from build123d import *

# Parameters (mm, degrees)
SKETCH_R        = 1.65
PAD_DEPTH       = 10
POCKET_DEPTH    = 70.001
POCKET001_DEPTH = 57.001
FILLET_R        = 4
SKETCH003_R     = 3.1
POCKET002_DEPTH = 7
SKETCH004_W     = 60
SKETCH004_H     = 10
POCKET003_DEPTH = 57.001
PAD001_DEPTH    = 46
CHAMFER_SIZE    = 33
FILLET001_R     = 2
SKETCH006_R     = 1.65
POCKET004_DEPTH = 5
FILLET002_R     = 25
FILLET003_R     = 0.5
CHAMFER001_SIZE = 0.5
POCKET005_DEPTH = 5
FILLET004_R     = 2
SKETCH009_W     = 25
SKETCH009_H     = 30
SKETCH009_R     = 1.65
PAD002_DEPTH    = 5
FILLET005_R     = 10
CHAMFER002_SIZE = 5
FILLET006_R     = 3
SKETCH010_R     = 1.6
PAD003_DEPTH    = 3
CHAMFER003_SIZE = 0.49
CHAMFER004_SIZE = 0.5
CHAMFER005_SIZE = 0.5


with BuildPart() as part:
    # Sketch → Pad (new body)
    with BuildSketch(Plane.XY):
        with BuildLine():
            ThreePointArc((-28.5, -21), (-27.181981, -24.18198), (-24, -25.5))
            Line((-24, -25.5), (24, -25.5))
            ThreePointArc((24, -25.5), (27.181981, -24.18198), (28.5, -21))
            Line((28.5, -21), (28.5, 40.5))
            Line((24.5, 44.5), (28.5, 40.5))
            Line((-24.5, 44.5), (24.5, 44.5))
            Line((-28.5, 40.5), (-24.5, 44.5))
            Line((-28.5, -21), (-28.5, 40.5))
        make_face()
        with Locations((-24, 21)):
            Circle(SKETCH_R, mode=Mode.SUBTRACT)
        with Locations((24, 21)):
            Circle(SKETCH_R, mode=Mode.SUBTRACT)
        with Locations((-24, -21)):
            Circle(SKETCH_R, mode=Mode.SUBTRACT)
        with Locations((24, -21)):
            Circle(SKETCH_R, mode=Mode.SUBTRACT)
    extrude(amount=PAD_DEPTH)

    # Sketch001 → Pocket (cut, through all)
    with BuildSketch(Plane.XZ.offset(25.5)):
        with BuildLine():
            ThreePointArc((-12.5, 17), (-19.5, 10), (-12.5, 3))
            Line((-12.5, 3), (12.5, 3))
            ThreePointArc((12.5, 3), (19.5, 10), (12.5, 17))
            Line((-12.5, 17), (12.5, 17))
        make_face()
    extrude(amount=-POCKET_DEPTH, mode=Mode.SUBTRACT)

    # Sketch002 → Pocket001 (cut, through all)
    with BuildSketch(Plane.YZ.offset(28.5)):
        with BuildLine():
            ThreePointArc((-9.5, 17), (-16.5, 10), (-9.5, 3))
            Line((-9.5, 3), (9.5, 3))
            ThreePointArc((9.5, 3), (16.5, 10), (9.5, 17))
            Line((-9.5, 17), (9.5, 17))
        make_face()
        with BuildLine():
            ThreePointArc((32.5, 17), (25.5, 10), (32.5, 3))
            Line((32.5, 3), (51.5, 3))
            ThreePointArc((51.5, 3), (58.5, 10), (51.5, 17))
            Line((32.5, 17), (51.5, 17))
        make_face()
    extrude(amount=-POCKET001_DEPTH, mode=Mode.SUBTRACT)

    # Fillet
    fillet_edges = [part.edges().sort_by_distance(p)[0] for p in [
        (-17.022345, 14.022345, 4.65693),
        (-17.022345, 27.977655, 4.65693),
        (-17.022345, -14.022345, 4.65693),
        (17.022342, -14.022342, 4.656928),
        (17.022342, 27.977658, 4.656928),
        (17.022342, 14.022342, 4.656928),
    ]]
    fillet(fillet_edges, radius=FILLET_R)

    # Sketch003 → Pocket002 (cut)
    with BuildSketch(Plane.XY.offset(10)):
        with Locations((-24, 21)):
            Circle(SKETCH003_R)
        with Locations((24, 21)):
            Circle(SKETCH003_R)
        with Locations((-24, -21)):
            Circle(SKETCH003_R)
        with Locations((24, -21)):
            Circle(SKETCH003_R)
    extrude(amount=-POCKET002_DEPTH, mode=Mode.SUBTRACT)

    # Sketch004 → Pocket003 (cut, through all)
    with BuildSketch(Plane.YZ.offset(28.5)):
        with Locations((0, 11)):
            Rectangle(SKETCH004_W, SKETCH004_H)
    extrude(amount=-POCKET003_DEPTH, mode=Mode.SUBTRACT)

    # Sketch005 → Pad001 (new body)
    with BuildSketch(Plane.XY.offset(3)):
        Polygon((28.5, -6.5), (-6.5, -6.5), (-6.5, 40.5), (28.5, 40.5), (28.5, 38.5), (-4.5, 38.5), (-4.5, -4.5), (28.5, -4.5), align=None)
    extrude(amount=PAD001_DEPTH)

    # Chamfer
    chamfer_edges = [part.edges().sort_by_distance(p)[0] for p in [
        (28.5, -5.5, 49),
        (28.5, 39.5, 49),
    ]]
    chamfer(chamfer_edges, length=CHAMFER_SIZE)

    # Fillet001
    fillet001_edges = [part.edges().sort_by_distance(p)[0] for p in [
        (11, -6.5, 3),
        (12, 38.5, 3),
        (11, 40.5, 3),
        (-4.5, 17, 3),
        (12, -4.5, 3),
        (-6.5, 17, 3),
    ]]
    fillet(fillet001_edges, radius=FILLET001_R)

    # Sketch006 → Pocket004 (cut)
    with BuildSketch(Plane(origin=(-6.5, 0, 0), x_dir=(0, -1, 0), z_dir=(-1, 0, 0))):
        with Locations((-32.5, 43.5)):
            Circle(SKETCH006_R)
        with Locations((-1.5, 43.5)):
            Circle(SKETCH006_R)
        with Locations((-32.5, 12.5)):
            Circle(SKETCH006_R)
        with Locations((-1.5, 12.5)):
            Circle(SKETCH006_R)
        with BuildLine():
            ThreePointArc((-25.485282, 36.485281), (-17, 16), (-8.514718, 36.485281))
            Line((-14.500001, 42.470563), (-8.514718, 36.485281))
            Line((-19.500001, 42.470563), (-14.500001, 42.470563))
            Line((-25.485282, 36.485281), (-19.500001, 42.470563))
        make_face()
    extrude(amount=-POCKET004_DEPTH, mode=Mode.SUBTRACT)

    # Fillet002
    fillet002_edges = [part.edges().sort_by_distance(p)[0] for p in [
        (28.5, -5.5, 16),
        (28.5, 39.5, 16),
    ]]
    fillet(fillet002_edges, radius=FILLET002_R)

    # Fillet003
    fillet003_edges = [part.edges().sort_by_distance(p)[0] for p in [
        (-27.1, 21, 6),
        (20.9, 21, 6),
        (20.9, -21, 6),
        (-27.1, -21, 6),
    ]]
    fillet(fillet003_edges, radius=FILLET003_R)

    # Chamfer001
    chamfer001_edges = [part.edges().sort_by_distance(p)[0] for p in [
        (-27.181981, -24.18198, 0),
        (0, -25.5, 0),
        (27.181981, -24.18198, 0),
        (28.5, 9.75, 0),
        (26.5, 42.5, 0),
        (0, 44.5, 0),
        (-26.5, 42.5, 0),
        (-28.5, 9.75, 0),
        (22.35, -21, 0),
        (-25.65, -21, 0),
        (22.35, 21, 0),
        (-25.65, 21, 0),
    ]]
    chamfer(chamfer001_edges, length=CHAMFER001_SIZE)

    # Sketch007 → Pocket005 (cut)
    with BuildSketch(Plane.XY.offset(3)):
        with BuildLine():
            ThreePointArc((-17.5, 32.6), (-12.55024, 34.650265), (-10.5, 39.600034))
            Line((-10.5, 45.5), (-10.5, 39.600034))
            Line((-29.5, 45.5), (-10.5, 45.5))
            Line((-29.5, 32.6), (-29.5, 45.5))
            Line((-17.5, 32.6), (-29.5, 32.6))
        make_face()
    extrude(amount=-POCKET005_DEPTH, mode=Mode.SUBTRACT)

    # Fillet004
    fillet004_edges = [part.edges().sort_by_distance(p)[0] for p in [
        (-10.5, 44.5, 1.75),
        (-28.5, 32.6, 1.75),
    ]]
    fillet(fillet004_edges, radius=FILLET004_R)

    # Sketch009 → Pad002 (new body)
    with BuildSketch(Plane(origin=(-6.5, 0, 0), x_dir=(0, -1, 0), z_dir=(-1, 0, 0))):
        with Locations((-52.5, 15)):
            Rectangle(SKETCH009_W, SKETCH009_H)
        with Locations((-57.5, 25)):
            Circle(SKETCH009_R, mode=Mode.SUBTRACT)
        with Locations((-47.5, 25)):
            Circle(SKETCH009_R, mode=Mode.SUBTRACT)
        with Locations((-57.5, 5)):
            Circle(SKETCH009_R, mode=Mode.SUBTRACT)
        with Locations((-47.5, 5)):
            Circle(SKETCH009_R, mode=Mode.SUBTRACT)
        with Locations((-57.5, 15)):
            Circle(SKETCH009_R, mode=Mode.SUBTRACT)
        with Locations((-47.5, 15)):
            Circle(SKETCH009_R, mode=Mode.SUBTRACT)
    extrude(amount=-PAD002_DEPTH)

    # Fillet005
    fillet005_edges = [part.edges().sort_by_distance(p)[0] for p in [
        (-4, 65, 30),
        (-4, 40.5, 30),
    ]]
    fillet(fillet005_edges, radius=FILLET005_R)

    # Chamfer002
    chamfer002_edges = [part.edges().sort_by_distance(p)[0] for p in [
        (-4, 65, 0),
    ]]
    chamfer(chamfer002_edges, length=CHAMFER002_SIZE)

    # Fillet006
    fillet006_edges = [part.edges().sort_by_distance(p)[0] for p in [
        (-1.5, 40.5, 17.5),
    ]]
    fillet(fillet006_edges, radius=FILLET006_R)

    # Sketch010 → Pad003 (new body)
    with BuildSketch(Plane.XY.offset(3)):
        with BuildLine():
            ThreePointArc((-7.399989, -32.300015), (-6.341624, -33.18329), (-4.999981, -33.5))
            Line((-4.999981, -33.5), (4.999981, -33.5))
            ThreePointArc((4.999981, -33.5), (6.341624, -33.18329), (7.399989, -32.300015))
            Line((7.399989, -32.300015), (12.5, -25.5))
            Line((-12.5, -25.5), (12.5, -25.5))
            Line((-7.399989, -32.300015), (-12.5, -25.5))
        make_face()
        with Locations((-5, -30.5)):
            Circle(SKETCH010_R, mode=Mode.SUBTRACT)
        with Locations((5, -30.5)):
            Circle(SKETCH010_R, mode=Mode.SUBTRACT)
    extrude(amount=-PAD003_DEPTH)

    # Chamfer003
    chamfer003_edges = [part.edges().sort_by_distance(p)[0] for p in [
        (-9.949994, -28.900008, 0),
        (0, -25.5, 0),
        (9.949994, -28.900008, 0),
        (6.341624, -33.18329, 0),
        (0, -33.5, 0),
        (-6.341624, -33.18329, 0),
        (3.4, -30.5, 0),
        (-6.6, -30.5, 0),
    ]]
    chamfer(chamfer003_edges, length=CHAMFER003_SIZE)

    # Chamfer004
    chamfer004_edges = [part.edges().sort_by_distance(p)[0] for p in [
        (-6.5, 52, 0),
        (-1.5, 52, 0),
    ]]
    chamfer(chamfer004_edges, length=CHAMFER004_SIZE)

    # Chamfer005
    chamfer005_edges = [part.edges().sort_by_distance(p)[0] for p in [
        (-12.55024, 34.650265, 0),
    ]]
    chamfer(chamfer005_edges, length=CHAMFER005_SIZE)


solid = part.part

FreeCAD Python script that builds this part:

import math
import FreeCAD as App
import Part
import Sketcher

V = App.Vector
Q = App.Units.Quantity


def edges_at(feature, points):
    """Names of the edges that pass closest to the given points."""
    edges = feature.Shape.Edges
    near = lambda p: min(range(len(edges)), key=lambda i: edges[i].distToShape(Part.Vertex(*p))[0])
    return sorted({f"Edge{near(p) + 1}" for p in points})


def add_polygon(sketch, points):
    """Adds a closed chain of lines whose ends are joined by coincident constraints."""
    first, n = sketch.GeometryCount, len(points)
    for a, b in zip(points, points[1:] + points[:1]):
        sketch.addGeometry(Part.LineSegment(App.Vector(*a, 0), App.Vector(*b, 0)), False)
    for i in range(n):
        sketch.addConstraint(Sketcher.Constraint("Coincident", first + i, 2, first + (i + 1) % n, 1))

doc = App.newDocument("Part")
body = doc.addObject("PartDesign::Body", "Body")

sketch1 = body.newObject("Sketcher::SketchObject", "Sketch")
sketch1.AttachmentSupport = (doc.getObject("XY_Plane"), [""])
sketch1.MapMode = "FlatFace"
sketch1.addGeometry([
    Part.ArcOfCircle(Part.Circle(V(-24, -21, 0), V(0, 0, 1), 4.5), math.radians(-180), math.radians(-90)),
    Part.LineSegment(V(-24, -25.5, 0), V(24, -25.5, 0)),
    Part.ArcOfCircle(Part.Circle(V(24, -21, 0), V(0, 0, 1), 4.5), math.radians(-90), math.radians(0)),
    Part.LineSegment(V(28.5, -21, 0), V(28.5, 40.5, 0)),
    Part.LineSegment(V(28.5, 40.5, 0), V(24.5, 44.5, 0)),
    Part.LineSegment(V(24.5, 44.5, 0), V(-24.5, 44.5, 0)),
    Part.LineSegment(V(-24.5, 44.5, 0), V(-28.5, 40.5, 0)),
    Part.LineSegment(V(-28.5, 40.5, 0), V(-28.5, -21, 0)),
    Part.Circle(V(-24, -21, 0), V(0, 0, 1), 1.6),
    Part.Circle(V(24, -21, 0), V(0, 0, 1), 1.6),
    Part.Circle(V(-24, 21, 0), V(0, 0, 1), 1.6),
    Part.Circle(V(24, 21, 0), V(0, 0, 1), 1.6),
], False)
sketch1.addConstraint([
    Sketcher.Constraint("Tangent", 0, 2, 1, 1),
    Sketcher.Constraint("Tangent", 1, 2, 2, 1),
    Sketcher.Constraint("Tangent", 2, 2, 3, 1),
    Sketcher.Constraint("Coincident", 3, 2, 4, 1),
    Sketcher.Constraint("Coincident", 4, 2, 5, 1),
    Sketcher.Constraint("Coincident", 5, 2, 6, 1),
    Sketcher.Constraint("Coincident", 6, 2, 7, 1),
    Sketcher.Constraint("Tangent", 7, 2, 0, 1),
    Sketcher.Constraint("Horizontal", 1),
    Sketcher.Constraint("Vertical", 3),
    Sketcher.Constraint("Horizontal", 5),
    Sketcher.Constraint("Vertical", 7),
    Sketcher.Constraint("Coincident", 8, 3, 0, 3),
    Sketcher.Constraint("Coincident", 9, 3, 2, 3),
    Sketcher.Constraint("Equal", 0, 2),
    Sketcher.Constraint("Equal", 8, 9),
    Sketcher.Constraint("Equal", 9, 10),
    Sketcher.Constraint("Equal", 10, 11),
    Sketcher.Constraint("Symmetric", 2, 3, 10, 3, -1, 1),
    Sketcher.Constraint("Symmetric", 0, 3, 11, 3, -1, 1),
    Sketcher.Constraint("Symmetric", 3, 2, 6, 2, -2),
    Sketcher.Constraint("Perpendicular", 4, 6),
    Sketcher.Constraint("Equal", 4, 6),
    Sketcher.Constraint("Diameter", 8, Q("3.3 mm")),
    Sketcher.Constraint("Radius", 0, Q("4.5 mm")),
    Sketcher.Constraint("DistanceX", 1, 1, 1, 2, Q("48 mm")),
    Sketcher.Constraint("DistanceX", 5, 2, 5, 1, Q("49 mm")),
    Sketcher.Constraint("DistanceY", 3, 1, 3, 2, Q("61.5 mm")),
    Sketcher.Constraint("DistanceY", 0, 3, -1, 1, Q("21 mm")),
])
pad1 = body.newObject("PartDesign::Pad", "Pad")
pad1.Profile = sketch1
pad1.Length = 10

sketch2 = body.newObject("Sketcher::SketchObject", "Sketch001")
sketch2.AttachmentSupport = (doc.getObject("XZ_Plane"), [""])
sketch2.MapMode = "FlatFace"
sketch2.AttachmentOffset = App.Placement(V(0, 0, 25.5), App.Rotation())
sketch2.addGeometry([
    Part.ArcOfCircle(Part.Circle(V(-12, 10, 0), V(0, 0, 1), 7), math.radians(90), math.radians(270)),
    Part.LineSegment(V(-12, 3, 0), V(12, 3, 0)),
    Part.ArcOfCircle(Part.Circle(V(12, 10, 0), V(0, 0, 1), 7), math.radians(-90), math.radians(90)),
    Part.LineSegment(V(12, 17, 0), V(-12, 17, 0)),
], False)
sketch2.addConstraint([
    Sketcher.Constraint("Tangent", 0, 2, 1, 1),
    Sketcher.Constraint("Tangent", 1, 2, 2, 1),
    Sketcher.Constraint("Tangent", 2, 2, 3, 1),
    Sketcher.Constraint("Tangent", 3, 2, 0, 1),
    Sketcher.Constraint("Horizontal", 1),
    Sketcher.Constraint("Horizontal", 3),
    Sketcher.Constraint("Radius", 0, Q("7 mm")),
    Sketcher.Constraint("DistanceX", 1, 1, 1, 2, Q("25 mm")),
    Sketcher.Constraint("DistanceY", -1, 1, 0, 3, Q("10 mm")),
    Sketcher.Constraint("DistanceX", 0, 3, -1, 1, Q("12.5 mm")),
])
pocket1 = body.newObject("PartDesign::Pocket", "Pocket")
pocket1.Profile = sketch2
pocket1.Type = "ThroughAll"

sketch3 = body.newObject("Sketcher::SketchObject", "Sketch002")
sketch3.AttachmentSupport = (doc.getObject("YZ_Plane"), [""])
sketch3.MapMode = "FlatFace"
sketch3.AttachmentOffset = App.Placement(V(0, 0, 28.5), App.Rotation())
sketch3.addGeometry([
    Part.ArcOfCircle(Part.Circle(V(-10, 10, 0), V(0, 0, 1), 7), math.radians(90), math.radians(270)),
    Part.LineSegment(V(-10, 3, 0), V(10, 3, 0)),
    Part.ArcOfCircle(Part.Circle(V(10, 10, 0), V(0, 0, 1), 7), math.radians(-90), math.radians(90)),
    Part.LineSegment(V(10, 17, 0), V(-10, 17, 0)),
    Part.ArcOfCircle(Part.Circle(V(32, 10, 0), V(0, 0, 1), 7), math.radians(90), math.radians(270)),
    Part.LineSegment(V(32, 3, 0), V(52, 3, 0)),
    Part.ArcOfCircle(Part.Circle(V(52, 10, 0), V(0, 0, 1), 7), math.radians(-90), math.radians(90)),
    Part.LineSegment(V(52, 17, 0), V(32, 17, 0)),
], False)
sketch3.addConstraint([
    Sketcher.Constraint("Tangent", 0, 2, 1, 1),
    Sketcher.Constraint("Tangent", 1, 2, 2, 1),
    Sketcher.Constraint("Tangent", 2, 2, 3, 1),
    Sketcher.Constraint("Tangent", 3, 2, 0, 1),
    Sketcher.Constraint("Tangent", 4, 2, 5, 1),
    Sketcher.Constraint("Tangent", 5, 2, 6, 1),
    Sketcher.Constraint("Tangent", 6, 2, 7, 1),
    Sketcher.Constraint("Tangent", 7, 2, 4, 1),
    Sketcher.Constraint("Horizontal", 1),
    Sketcher.Constraint("Horizontal", 3),
    Sketcher.Constraint("Horizontal", 5),
    Sketcher.Constraint("Horizontal", 7),
    Sketcher.Constraint("Equal", 2, 4),
    Sketcher.Constraint("Horizontal", 2, 3, 4, 3),
    Sketcher.Constraint("Equal", 3, 5),
    Sketcher.Constraint("Radius", 0, Q("7 mm")),
    Sketcher.Constraint("DistanceX", 1, 1, 1, 2, Q("19 mm")),
    Sketcher.Constraint("DistanceY", -1, 1, 0, 3, Q("10 mm")),
    Sketcher.Constraint("DistanceX", 2, 3, 4, 3, Q("23 mm")),
    Sketcher.Constraint("DistanceX", 0, 3, -1, 1, Q("9.5 mm")),
])
pocket2 = body.newObject("PartDesign::Pocket", "Pocket001")
pocket2.Profile = sketch3
pocket2.Type = "ThroughAll"
doc.recompute()

fillet = body.newObject("PartDesign::Fillet", "Fillet")
fillet.Base = (pocket2, edges_at(pocket2, [
    (-17.022, 14.022, 4.657),
    (-17.022, 27.978, 4.657),
    (-17.022, -14.022, 4.657),
    (17.022, -14.022, 4.657),
    (17.022, 27.978, 4.657),
    (17.022, 14.022, 4.657),
]))
fillet.Radius = 4

sketch4 = body.newObject("Sketcher::SketchObject", "Sketch003")
sketch4.AttachmentSupport = (doc.getObject("XY_Plane"), [""])
sketch4.MapMode = "FlatFace"
sketch4.AttachmentOffset = App.Placement(V(0, 0, 10), App.Rotation())
sketch4.addGeometry([
    Part.Circle(V(-24, 21, 0), V(0, 0, 1), 3.1),
    Part.Circle(V(24, 21, 0), V(0, 0, 1), 3.1),
    Part.Circle(V(-24, -21, 0), V(0, 0, 1), 3.1),
    Part.Circle(V(24, -21, 0), V(0, 0, 1), 3.1),
], False)
sketch4.addConstraint([
    Sketcher.Constraint("Equal", 0, 1),
    Sketcher.Constraint("Equal", 1, 2),
    Sketcher.Constraint("Equal", 2, 3),
    Sketcher.Constraint("Symmetric", 1, 3, 2, 3, -1, 1),
    Sketcher.Constraint("Symmetric", 0, 3, 3, 3, -1, 1),
    Sketcher.Constraint("Symmetric", 0, 3, 1, 3, -2),
    Sketcher.Constraint("Diameter", 0, Q("6.2 mm")),
    Sketcher.Constraint("DistanceX", 0, 3, -1, 1, Q("24 mm")),
    Sketcher.Constraint("DistanceY", -1, 1, 0, 3, Q("21 mm")),
])
pocket3 = body.newObject("PartDesign::Pocket", "Pocket002")
pocket3.Profile = sketch4
pocket3.Length = 7

sketch5 = body.newObject("Sketcher::SketchObject", "Sketch004")
sketch5.AttachmentSupport = (doc.getObject("YZ_Plane"), [""])
sketch5.MapMode = "FlatFace"
sketch5.AttachmentOffset = App.Placement(V(0, 0, 28.5), App.Rotation())
add_polygon(sketch5, [(-30, 16), (-30, 6), (30, 6), (30, 16)])
sketch5.addConstraint([
    Sketcher.Constraint("Vertical", 0),
    Sketcher.Constraint("Horizontal", 1),
    Sketcher.Constraint("Vertical", 2),
    Sketcher.Constraint("Horizontal", 3),
    Sketcher.Constraint("DistanceX", 1, 1, 1, 2, Q("60 mm")),
    Sketcher.Constraint("DistanceY", 0, 2, 0, 1, Q("10 mm")),
    Sketcher.Constraint("DistanceX", 0, 2, -1, 1, Q("30 mm")),
    Sketcher.Constraint("DistanceY", -1, 1, 0, 2, Q("6 mm")),
])
pocket4 = body.newObject("PartDesign::Pocket", "Pocket003")
pocket4.Profile = sketch5
pocket4.Type = "ThroughAll"

sketch6 = body.newObject("Sketcher::SketchObject", "Sketch005")
sketch6.AttachmentSupport = (doc.getObject("XY_Plane"), [""])
sketch6.MapMode = "FlatFace"
sketch6.AttachmentOffset = App.Placement(V(0, 0, 3), App.Rotation())
add_polygon(sketch6, [(-6.5, -6.5), (28.5, -6.5), (28.5, -4.5), (-4.5, -4.5), (-4.5, 38.5), (28.5, 38.5), (28.5, 40.5), (-6.5, 40.5)])
sketch6.addConstraint([
    Sketcher.Constraint("Horizontal", 0),
    Sketcher.Constraint("Vertical", 1),
    Sketcher.Constraint("Horizontal", 2),
    Sketcher.Constraint("Vertical", 3),
    Sketcher.Constraint("Horizontal", 4),
    Sketcher.Constraint("Vertical", 5),
    Sketcher.Constraint("Horizontal", 6),
    Sketcher.Constraint("Vertical", 7),
    Sketcher.Constraint("Vertical", 1, 2, 4, 2),
    Sketcher.Constraint("Equal", 1, 5),
    Sketcher.Constraint("DistanceX", 0, 1, 0, 2, Q("35 mm")),
    Sketcher.Constraint("DistanceX", 2, 2, 2, 1, Q("33 mm")),
    Sketcher.Constraint("DistanceY", 1, 1, 1, 2, Q("2 mm")),
    Sketcher.Constraint("DistanceY", 3, 1, 3, 2, Q("43 mm")),
    Sketcher.Constraint("DistanceX", -1, 1, 0, 2, Q("28.5 mm")),
    Sketcher.Constraint("DistanceY", 0, 2, -1, 1, Q("6.5 mm")),
])
pad2 = body.newObject("PartDesign::Pad", "Pad001")
pad2.Profile = sketch6
pad2.Length = 46
doc.recompute()

chamfer = body.newObject("PartDesign::Chamfer", "Chamfer")
chamfer.Base = (pad2, edges_at(pad2, [(28.5, -5.5, 49), (28.5, 39.5, 49)]))
chamfer.Size = 33
doc.recompute()

fillet2 = body.newObject("PartDesign::Fillet", "Fillet001")
fillet2.Base = (chamfer, edges_at(chamfer, [
    (11, -6.5, 3),
    (12, 38.5, 3),
    (11, 40.5, 3),
    (-4.5, 17, 3),
    (12, -4.5, 3),
    (-6.5, 17, 3),
]))
fillet2.Radius = 2

sketch7 = body.newObject("Sketcher::SketchObject", "Sketch006")
sketch7.AttachmentSupport = (doc.getObject("YZ_Plane"), [""])
sketch7.MapMode = "FlatFace"
sketch7.AttachmentOffset = App.Placement(V(0, 0, -6.5), App.Rotation())
sketch7.addGeometry([
    Part.Circle(V(32.5, 43.5, 0), V(0, 0, 1), 1.6),
    Part.Circle(V(1.5, 43.5, 0), V(0, 0, 1), 1.6),
    Part.Circle(V(32.5, 12.5, 0), V(0, 0, 1), 1.6),
    Part.Circle(V(1.5, 12.5, 0), V(0, 0, 1), 1.6),
    Part.ArcOfCircle(Part.Circle(V(17, 28, 0), V(0, 0, 1), 12), math.radians(135), math.radians(405)),
    Part.LineSegment(V(8.5, 36.5, 0), V(14.5, 42.5, 0)),
    Part.LineSegment(V(14.5, 42.5, 0), V(19.5, 42.5, 0)),
    Part.LineSegment(V(19.5, 42.5, 0), V(25.5, 36.5, 0)),
], False)
sketch7.addConstraint([
    Sketcher.Constraint("Tangent", 4, 1, 5, 1),
    Sketcher.Constraint("Coincident", 5, 2, 6, 1),
    Sketcher.Constraint("Coincident", 6, 2, 7, 1),
    Sketcher.Constraint("Tangent", 7, 2, 4, 2),
    Sketcher.Constraint("Horizontal", 6),
    Sketcher.Constraint("Equal", 0, 1),
    Sketcher.Constraint("Equal", 1, 2),
    Sketcher.Constraint("Equal", 2, 3),
    Sketcher.Constraint("Perpendicular", 5, 7),
    Sketcher.Constraint("Horizontal", 0, 3, 1, 3),
    Sketcher.Constraint("Horizontal", 2, 3, 3, 3),
    Sketcher.Constraint("Horizontal", 4, 1, 7, 2),
    Sketcher.Constraint("Vertical", 0, 3, 2, 3),
    Sketcher.Constraint("Vertical", 1, 3, 3, 3),
    Sketcher.Constraint("Radius", 4, Q("12 mm")),
    Sketcher.Constraint("Diameter", 0, Q("3.3 mm")),
    Sketcher.Constraint("DistanceX", 6, 1, 6, 2, Q("5 mm")),
    Sketcher.Constraint("DistanceX", -1, 1, 4, 3, Q("17 mm")),
    Sketcher.Constraint("DistanceY", -1, 1, 4, 3, Q("28 mm")),
    Sketcher.Constraint("DistanceX", 1, 3, 0, 3, Q("31 mm")),
    Sketcher.Constraint("DistanceY", 2, 3, 0, 3, Q("31 mm")),
    Sketcher.Constraint("DistanceX", 1, 3, 5, 2, Q("13.000001 mm")),
    Sketcher.Constraint("DistanceY", -1, 1, 0, 3, Q("43.5 mm")),
])
pocket5 = body.newObject("PartDesign::Pocket", "Pocket004")
pocket5.Profile = sketch7
pocket5.Length = 5
pocket5.Reversed = True
doc.recompute()

fillet3 = body.newObject("PartDesign::Fillet", "Fillet002")
fillet3.Base = (pocket5, edges_at(pocket5, [(28.5, -5.5, 16), (28.5, 39.5, 16)]))
fillet3.Radius = 25
doc.recompute()

fillet4 = body.newObject("PartDesign::Fillet", "Fillet003")
fillet4.Base = (fillet3, edges_at(fillet3, [
    (-27.1, 21, 6),
    (20.9, 21, 6),
    (20.9, -21, 6),
    (-27.1, -21, 6),
]))
fillet4.Radius = 0.5
doc.recompute()

chamfer2 = body.newObject("PartDesign::Chamfer", "Chamfer001")
chamfer2.Base = (fillet4, edges_at(fillet4, [
    (-27.182, -24.182, 0),
    (0, -25.5, 0),
    (27.182, -24.182, 0),
    (28.5, 9.75, 0),
    (26.5, 42.5, 0),
    (0, 44.5, 0),
    (-26.5, 42.5, 0),
    (-28.5, 9.75, 0),
    (22.35, -21, 0),
    (-25.65, -21, 0),
    (22.35, 21, 0),
    (-25.65, 21, 0),
]))
chamfer2.Size = 0.5

sketch8 = body.newObject("Sketcher::SketchObject", "Sketch007")
sketch8.AttachmentSupport = (doc.getObject("XY_Plane"), [""])
sketch8.MapMode = "FlatFace"
sketch8.AttachmentOffset = App.Placement(V(0, 0, 3), App.Rotation())
sketch8.addGeometry([
    Part.ArcOfCircle(Part.Circle(V(-17, 40, 0), V(0, 0, 1), 7), math.radians(-90), math.radians(0)),
    Part.LineSegment(V(-10, 40, 0), V(-10, 46, 0)),
    Part.LineSegment(V(-10, 46, 0), V(-30, 46, 0)),
    Part.LineSegment(V(-30, 46, 0), V(-30, 33, 0)),
    Part.LineSegment(V(-30, 33, 0), V(-18, 33, 0)),
], False)
sketch8.addConstraint([
    Sketcher.Constraint("Coincident", 0, 2, 1, 1),
    Sketcher.Constraint("Coincident", 1, 2, 2, 1),
    Sketcher.Constraint("Coincident", 2, 2, 3, 1),
    Sketcher.Constraint("Coincident", 3, 2, 4, 1),
    Sketcher.Constraint("Tangent", 4, 2, 0, 1),
    Sketcher.Constraint("Vertical", 1),
    Sketcher.Constraint("Horizontal", 2),
    Sketcher.Constraint("Vertical", 3),
    Sketcher.Constraint("Horizontal", 4),
    Sketcher.Constraint("Radius", 0, Q("7 mm")),
    Sketcher.Constraint("DistanceX", 2, 2, 2, 1, Q("19 mm")),
    Sketcher.Constraint("DistanceY", 3, 2, 3, 1, Q("12.9 mm")),
    Sketcher.Constraint("DistanceX", 0, 3, -1, 1, Q("17.5 mm")),
    Sketcher.Constraint("DistanceY", -1, 1, 0, 3, Q("39.6 mm")),
    Sketcher.Constraint("DistanceY", 1, 1, 1, 2, Q("5.899966 mm")),
])
pocket6 = body.newObject("PartDesign::Pocket", "Pocket005")
pocket6.Profile = sketch8
pocket6.Length = 5
doc.recompute()

fillet5 = body.newObject("PartDesign::Fillet", "Fillet004")
fillet5.Base = (pocket6, edges_at(pocket6, [(-10.5, 44.5, 1.75), (-28.5, 32.6, 1.75)]))
fillet5.Radius = 2

sketch9 = body.newObject("Sketcher::SketchObject", "Sketch008")
sketch9.AttachmentSupport = (doc.getObject("YZ_Plane"), [""])
sketch9.MapMode = "FlatFace"
sketch9.AttachmentOffset = App.Placement(V(0, 0, -6.5), App.Rotation())
add_polygon(sketch9, [(65, 30), (65, 0), (40, 0), (40, 30)])
sketch9.addGeometry(Part.Circle(V(57.5, 5, 0), V(0, 0, 1), 1.6), False)
sketch9.addGeometry(Part.Circle(V(47.5, 5, 0), V(0, 0, 1), 1.6), False)
sketch9.addGeometry(Part.Circle(V(57.5, 15, 0), V(0, 0, 1), 1.6), False)
sketch9.addGeometry(Part.Circle(V(57.5, 25, 0), V(0, 0, 1), 1.6), False)
sketch9.addGeometry(Part.Circle(V(47.5, 15, 0), V(0, 0, 1), 1.6), False)
sketch9.addGeometry(Part.Circle(V(47.5, 25, 0), V(0, 0, 1), 1.6), False)
sketch9.addConstraint([
    Sketcher.Constraint("Vertical", 0),
    Sketcher.Constraint("Horizontal", 1),
    Sketcher.Constraint("Vertical", 2),
    Sketcher.Constraint("Horizontal", 3),
    Sketcher.Constraint("Equal", 4, 5),
    Sketcher.Constraint("Equal", 5, 6),
    Sketcher.Constraint("Equal", 6, 7),
    Sketcher.Constraint("Equal", 7, 8),
    Sketcher.Constraint("Equal", 8, 9),
    Sketcher.Constraint("PointOnObject", 0, 2, -1),
    Sketcher.Constraint("Horizontal", 4, 3, 5, 3),
    Sketcher.Constraint("Horizontal", 6, 3, 8, 3),
    Sketcher.Constraint("Horizontal", 7, 3, 9, 3),
    Sketcher.Constraint("Vertical", 4, 3, 6, 3),
    Sketcher.Constraint("Vertical", 6, 3, 7, 3),
    Sketcher.Constraint("Vertical", 5, 3, 8, 3),
    Sketcher.Constraint("Vertical", 8, 3, 9, 3),
    Sketcher.Constraint("Diameter", 4, Q("3.3 mm")),
    Sketcher.Constraint("DistanceX", 1, 2, 1, 1, Q("25 mm")),
    Sketcher.Constraint("DistanceY", 0, 2, 0, 1, Q("30 mm")),
    Sketcher.Constraint("DistanceY", -1, 1, 4, 3, Q("5 mm")),
    Sketcher.Constraint("DistanceY", -1, 1, 6, 3, Q("15 mm")),
    Sketcher.Constraint("DistanceY", -1, 1, 7, 3, Q("25 mm")),
    Sketcher.Constraint("DistanceX", -1, 1, 0, 2, Q("65 mm")),
    Sketcher.Constraint("DistanceX", 5, 3, 4, 3, Q("10 mm")),
    Sketcher.Constraint("DistanceX", -1, 1, 4, 3, Q("57.5 mm")),
])
pad3 = body.newObject("PartDesign::Pad", "Pad002")
pad3.Profile = sketch9
pad3.Length = 5
doc.recompute()

fillet6 = body.newObject("PartDesign::Fillet", "Fillet005")
fillet6.Base = (pad3, edges_at(pad3, [(-4, 65, 30), (-4, 40.5, 30)]))
fillet6.Radius = 10
doc.recompute()

chamfer3 = body.newObject("PartDesign::Chamfer", "Chamfer002")
chamfer3.Base = (fillet6, edges_at(fillet6, [(-4, 65, 0)]))
chamfer3.Size = 5
doc.recompute()

fillet7 = body.newObject("PartDesign::Fillet", "Fillet006")
fillet7.Base = (chamfer3, edges_at(chamfer3, [(-1.5, 40.5, 22.5)]))
fillet7.Radius = 3

sketch10 = body.newObject("Sketcher::SketchObject", "Sketch009")
sketch10.AttachmentSupport = (doc.getObject("XY_Plane"), [""])
sketch10.MapMode = "FlatFace"
sketch10.AttachmentOffset = App.Placement(V(0, 0, 3), App.Rotation())
sketch10.addGeometry([
    Part.ArcOfCircle(Part.Circle(V(-5, -30.5, 0), V(0, 0, 1), 3), math.radians(-143), math.radians(-90)),
    Part.LineSegment(V(-5, -33.5, 0), V(5, -33.5, 0)),
    Part.ArcOfCircle(Part.Circle(V(5, -30.5, 0), V(0, 0, 1), 3), math.radians(-90), math.radians(-37)),
    Part.LineSegment(V(7.4, -32.3, 0), V(12.5, -25.5, 0)),
    Part.LineSegment(V(12.5, -25.5, 0), V(-12.5, -25.5, 0)),
    Part.LineSegment(V(-12.5, -25.5, 0), V(-7.4, -32.3, 0)),
    Part.Circle(V(-5, -30.5, 0), V(0, 0, 1), 1.6),
    Part.Circle(V(5, -30.5, 0), V(0, 0, 1), 1.6),
], False)
sketch10.addConstraint([
    Sketcher.Constraint("Coincident", 0, 2, 1, 1),
    Sketcher.Constraint("Coincident", 1, 2, 2, 1),
    Sketcher.Constraint("Coincident", 2, 2, 3, 1),
    Sketcher.Constraint("Coincident", 3, 2, 4, 1),
    Sketcher.Constraint("Coincident", 4, 2, 5, 1),
    Sketcher.Constraint("Coincident", 5, 2, 0, 1),
    Sketcher.Constraint("Horizontal", 1),
    Sketcher.Constraint("Horizontal", 4),
    Sketcher.Constraint("Coincident", 6, 3, 0, 3),
    Sketcher.Constraint("Coincident", 7, 3, 2, 3),
    Sketcher.Constraint("Equal", 0, 2),
    Sketcher.Constraint("Equal", 6, 7),
    Sketcher.Constraint("Symmetric", 2, 2, 5, 2, -2),
    Sketcher.Constraint("Equal", 3, 5),
    Sketcher.Constraint("Radius", 0, Q("3.000001 mm")),
    Sketcher.Constraint("Diameter", 6, Q("3.2 mm")),
    Sketcher.Constraint("DistanceX", 4, 2, 4, 1, Q("25 mm")),
    Sketcher.Constraint("DistanceX", 0, 3, -1, 1, Q("5 mm")),
    Sketcher.Constraint("DistanceY", 2, 3, 3, 2, Q("4.999999 mm")),
    Sketcher.Constraint("DistanceY", 0, 3, -1, 1, Q("30.499999 mm")),
    Sketcher.Constraint("Distance", 3, Q("8.500019 mm")),
    Sketcher.Constraint("DistanceX", 1, 1, 1, 2, Q("9.999962 mm")),
    Sketcher.Constraint("DistanceX", 0, 2, -1, 1, Q("4.999981 mm")),
])
pad4 = body.newObject("PartDesign::Pad", "Pad003")
pad4.Profile = sketch10
pad4.Length = 3
pad4.Reversed = True
doc.recompute()

chamfer4 = body.newObject("PartDesign::Chamfer", "Chamfer003")
chamfer4.Base = (pad4, edges_at(pad4, [
    (-9.95, -28.9, 0),
    (0, -25.5, 0),
    (9.95, -28.9, 0),
    (6.342, -33.183, 0),
    (0, -33.5, 0),
    (-6.342, -33.183, 0),
    (3.4, -30.5, 0),
    (-6.6, -30.5, 0),
]))
chamfer4.Size = 0.49
doc.recompute()

chamfer5 = body.newObject("PartDesign::Chamfer", "Chamfer004")
chamfer5.Base = (chamfer4, edges_at(chamfer4, [(-6.5, 52, 0), (-1.5, 52, 0)]))
chamfer5.Size = 0.5
doc.recompute()

chamfer6 = body.newObject("PartDesign::Chamfer", "Chamfer005")
chamfer6.Base = (chamfer5, edges_at(chamfer5, [(-12.55, 34.65, 0)]))
chamfer6.Size = 0.5

doc.recompute()
